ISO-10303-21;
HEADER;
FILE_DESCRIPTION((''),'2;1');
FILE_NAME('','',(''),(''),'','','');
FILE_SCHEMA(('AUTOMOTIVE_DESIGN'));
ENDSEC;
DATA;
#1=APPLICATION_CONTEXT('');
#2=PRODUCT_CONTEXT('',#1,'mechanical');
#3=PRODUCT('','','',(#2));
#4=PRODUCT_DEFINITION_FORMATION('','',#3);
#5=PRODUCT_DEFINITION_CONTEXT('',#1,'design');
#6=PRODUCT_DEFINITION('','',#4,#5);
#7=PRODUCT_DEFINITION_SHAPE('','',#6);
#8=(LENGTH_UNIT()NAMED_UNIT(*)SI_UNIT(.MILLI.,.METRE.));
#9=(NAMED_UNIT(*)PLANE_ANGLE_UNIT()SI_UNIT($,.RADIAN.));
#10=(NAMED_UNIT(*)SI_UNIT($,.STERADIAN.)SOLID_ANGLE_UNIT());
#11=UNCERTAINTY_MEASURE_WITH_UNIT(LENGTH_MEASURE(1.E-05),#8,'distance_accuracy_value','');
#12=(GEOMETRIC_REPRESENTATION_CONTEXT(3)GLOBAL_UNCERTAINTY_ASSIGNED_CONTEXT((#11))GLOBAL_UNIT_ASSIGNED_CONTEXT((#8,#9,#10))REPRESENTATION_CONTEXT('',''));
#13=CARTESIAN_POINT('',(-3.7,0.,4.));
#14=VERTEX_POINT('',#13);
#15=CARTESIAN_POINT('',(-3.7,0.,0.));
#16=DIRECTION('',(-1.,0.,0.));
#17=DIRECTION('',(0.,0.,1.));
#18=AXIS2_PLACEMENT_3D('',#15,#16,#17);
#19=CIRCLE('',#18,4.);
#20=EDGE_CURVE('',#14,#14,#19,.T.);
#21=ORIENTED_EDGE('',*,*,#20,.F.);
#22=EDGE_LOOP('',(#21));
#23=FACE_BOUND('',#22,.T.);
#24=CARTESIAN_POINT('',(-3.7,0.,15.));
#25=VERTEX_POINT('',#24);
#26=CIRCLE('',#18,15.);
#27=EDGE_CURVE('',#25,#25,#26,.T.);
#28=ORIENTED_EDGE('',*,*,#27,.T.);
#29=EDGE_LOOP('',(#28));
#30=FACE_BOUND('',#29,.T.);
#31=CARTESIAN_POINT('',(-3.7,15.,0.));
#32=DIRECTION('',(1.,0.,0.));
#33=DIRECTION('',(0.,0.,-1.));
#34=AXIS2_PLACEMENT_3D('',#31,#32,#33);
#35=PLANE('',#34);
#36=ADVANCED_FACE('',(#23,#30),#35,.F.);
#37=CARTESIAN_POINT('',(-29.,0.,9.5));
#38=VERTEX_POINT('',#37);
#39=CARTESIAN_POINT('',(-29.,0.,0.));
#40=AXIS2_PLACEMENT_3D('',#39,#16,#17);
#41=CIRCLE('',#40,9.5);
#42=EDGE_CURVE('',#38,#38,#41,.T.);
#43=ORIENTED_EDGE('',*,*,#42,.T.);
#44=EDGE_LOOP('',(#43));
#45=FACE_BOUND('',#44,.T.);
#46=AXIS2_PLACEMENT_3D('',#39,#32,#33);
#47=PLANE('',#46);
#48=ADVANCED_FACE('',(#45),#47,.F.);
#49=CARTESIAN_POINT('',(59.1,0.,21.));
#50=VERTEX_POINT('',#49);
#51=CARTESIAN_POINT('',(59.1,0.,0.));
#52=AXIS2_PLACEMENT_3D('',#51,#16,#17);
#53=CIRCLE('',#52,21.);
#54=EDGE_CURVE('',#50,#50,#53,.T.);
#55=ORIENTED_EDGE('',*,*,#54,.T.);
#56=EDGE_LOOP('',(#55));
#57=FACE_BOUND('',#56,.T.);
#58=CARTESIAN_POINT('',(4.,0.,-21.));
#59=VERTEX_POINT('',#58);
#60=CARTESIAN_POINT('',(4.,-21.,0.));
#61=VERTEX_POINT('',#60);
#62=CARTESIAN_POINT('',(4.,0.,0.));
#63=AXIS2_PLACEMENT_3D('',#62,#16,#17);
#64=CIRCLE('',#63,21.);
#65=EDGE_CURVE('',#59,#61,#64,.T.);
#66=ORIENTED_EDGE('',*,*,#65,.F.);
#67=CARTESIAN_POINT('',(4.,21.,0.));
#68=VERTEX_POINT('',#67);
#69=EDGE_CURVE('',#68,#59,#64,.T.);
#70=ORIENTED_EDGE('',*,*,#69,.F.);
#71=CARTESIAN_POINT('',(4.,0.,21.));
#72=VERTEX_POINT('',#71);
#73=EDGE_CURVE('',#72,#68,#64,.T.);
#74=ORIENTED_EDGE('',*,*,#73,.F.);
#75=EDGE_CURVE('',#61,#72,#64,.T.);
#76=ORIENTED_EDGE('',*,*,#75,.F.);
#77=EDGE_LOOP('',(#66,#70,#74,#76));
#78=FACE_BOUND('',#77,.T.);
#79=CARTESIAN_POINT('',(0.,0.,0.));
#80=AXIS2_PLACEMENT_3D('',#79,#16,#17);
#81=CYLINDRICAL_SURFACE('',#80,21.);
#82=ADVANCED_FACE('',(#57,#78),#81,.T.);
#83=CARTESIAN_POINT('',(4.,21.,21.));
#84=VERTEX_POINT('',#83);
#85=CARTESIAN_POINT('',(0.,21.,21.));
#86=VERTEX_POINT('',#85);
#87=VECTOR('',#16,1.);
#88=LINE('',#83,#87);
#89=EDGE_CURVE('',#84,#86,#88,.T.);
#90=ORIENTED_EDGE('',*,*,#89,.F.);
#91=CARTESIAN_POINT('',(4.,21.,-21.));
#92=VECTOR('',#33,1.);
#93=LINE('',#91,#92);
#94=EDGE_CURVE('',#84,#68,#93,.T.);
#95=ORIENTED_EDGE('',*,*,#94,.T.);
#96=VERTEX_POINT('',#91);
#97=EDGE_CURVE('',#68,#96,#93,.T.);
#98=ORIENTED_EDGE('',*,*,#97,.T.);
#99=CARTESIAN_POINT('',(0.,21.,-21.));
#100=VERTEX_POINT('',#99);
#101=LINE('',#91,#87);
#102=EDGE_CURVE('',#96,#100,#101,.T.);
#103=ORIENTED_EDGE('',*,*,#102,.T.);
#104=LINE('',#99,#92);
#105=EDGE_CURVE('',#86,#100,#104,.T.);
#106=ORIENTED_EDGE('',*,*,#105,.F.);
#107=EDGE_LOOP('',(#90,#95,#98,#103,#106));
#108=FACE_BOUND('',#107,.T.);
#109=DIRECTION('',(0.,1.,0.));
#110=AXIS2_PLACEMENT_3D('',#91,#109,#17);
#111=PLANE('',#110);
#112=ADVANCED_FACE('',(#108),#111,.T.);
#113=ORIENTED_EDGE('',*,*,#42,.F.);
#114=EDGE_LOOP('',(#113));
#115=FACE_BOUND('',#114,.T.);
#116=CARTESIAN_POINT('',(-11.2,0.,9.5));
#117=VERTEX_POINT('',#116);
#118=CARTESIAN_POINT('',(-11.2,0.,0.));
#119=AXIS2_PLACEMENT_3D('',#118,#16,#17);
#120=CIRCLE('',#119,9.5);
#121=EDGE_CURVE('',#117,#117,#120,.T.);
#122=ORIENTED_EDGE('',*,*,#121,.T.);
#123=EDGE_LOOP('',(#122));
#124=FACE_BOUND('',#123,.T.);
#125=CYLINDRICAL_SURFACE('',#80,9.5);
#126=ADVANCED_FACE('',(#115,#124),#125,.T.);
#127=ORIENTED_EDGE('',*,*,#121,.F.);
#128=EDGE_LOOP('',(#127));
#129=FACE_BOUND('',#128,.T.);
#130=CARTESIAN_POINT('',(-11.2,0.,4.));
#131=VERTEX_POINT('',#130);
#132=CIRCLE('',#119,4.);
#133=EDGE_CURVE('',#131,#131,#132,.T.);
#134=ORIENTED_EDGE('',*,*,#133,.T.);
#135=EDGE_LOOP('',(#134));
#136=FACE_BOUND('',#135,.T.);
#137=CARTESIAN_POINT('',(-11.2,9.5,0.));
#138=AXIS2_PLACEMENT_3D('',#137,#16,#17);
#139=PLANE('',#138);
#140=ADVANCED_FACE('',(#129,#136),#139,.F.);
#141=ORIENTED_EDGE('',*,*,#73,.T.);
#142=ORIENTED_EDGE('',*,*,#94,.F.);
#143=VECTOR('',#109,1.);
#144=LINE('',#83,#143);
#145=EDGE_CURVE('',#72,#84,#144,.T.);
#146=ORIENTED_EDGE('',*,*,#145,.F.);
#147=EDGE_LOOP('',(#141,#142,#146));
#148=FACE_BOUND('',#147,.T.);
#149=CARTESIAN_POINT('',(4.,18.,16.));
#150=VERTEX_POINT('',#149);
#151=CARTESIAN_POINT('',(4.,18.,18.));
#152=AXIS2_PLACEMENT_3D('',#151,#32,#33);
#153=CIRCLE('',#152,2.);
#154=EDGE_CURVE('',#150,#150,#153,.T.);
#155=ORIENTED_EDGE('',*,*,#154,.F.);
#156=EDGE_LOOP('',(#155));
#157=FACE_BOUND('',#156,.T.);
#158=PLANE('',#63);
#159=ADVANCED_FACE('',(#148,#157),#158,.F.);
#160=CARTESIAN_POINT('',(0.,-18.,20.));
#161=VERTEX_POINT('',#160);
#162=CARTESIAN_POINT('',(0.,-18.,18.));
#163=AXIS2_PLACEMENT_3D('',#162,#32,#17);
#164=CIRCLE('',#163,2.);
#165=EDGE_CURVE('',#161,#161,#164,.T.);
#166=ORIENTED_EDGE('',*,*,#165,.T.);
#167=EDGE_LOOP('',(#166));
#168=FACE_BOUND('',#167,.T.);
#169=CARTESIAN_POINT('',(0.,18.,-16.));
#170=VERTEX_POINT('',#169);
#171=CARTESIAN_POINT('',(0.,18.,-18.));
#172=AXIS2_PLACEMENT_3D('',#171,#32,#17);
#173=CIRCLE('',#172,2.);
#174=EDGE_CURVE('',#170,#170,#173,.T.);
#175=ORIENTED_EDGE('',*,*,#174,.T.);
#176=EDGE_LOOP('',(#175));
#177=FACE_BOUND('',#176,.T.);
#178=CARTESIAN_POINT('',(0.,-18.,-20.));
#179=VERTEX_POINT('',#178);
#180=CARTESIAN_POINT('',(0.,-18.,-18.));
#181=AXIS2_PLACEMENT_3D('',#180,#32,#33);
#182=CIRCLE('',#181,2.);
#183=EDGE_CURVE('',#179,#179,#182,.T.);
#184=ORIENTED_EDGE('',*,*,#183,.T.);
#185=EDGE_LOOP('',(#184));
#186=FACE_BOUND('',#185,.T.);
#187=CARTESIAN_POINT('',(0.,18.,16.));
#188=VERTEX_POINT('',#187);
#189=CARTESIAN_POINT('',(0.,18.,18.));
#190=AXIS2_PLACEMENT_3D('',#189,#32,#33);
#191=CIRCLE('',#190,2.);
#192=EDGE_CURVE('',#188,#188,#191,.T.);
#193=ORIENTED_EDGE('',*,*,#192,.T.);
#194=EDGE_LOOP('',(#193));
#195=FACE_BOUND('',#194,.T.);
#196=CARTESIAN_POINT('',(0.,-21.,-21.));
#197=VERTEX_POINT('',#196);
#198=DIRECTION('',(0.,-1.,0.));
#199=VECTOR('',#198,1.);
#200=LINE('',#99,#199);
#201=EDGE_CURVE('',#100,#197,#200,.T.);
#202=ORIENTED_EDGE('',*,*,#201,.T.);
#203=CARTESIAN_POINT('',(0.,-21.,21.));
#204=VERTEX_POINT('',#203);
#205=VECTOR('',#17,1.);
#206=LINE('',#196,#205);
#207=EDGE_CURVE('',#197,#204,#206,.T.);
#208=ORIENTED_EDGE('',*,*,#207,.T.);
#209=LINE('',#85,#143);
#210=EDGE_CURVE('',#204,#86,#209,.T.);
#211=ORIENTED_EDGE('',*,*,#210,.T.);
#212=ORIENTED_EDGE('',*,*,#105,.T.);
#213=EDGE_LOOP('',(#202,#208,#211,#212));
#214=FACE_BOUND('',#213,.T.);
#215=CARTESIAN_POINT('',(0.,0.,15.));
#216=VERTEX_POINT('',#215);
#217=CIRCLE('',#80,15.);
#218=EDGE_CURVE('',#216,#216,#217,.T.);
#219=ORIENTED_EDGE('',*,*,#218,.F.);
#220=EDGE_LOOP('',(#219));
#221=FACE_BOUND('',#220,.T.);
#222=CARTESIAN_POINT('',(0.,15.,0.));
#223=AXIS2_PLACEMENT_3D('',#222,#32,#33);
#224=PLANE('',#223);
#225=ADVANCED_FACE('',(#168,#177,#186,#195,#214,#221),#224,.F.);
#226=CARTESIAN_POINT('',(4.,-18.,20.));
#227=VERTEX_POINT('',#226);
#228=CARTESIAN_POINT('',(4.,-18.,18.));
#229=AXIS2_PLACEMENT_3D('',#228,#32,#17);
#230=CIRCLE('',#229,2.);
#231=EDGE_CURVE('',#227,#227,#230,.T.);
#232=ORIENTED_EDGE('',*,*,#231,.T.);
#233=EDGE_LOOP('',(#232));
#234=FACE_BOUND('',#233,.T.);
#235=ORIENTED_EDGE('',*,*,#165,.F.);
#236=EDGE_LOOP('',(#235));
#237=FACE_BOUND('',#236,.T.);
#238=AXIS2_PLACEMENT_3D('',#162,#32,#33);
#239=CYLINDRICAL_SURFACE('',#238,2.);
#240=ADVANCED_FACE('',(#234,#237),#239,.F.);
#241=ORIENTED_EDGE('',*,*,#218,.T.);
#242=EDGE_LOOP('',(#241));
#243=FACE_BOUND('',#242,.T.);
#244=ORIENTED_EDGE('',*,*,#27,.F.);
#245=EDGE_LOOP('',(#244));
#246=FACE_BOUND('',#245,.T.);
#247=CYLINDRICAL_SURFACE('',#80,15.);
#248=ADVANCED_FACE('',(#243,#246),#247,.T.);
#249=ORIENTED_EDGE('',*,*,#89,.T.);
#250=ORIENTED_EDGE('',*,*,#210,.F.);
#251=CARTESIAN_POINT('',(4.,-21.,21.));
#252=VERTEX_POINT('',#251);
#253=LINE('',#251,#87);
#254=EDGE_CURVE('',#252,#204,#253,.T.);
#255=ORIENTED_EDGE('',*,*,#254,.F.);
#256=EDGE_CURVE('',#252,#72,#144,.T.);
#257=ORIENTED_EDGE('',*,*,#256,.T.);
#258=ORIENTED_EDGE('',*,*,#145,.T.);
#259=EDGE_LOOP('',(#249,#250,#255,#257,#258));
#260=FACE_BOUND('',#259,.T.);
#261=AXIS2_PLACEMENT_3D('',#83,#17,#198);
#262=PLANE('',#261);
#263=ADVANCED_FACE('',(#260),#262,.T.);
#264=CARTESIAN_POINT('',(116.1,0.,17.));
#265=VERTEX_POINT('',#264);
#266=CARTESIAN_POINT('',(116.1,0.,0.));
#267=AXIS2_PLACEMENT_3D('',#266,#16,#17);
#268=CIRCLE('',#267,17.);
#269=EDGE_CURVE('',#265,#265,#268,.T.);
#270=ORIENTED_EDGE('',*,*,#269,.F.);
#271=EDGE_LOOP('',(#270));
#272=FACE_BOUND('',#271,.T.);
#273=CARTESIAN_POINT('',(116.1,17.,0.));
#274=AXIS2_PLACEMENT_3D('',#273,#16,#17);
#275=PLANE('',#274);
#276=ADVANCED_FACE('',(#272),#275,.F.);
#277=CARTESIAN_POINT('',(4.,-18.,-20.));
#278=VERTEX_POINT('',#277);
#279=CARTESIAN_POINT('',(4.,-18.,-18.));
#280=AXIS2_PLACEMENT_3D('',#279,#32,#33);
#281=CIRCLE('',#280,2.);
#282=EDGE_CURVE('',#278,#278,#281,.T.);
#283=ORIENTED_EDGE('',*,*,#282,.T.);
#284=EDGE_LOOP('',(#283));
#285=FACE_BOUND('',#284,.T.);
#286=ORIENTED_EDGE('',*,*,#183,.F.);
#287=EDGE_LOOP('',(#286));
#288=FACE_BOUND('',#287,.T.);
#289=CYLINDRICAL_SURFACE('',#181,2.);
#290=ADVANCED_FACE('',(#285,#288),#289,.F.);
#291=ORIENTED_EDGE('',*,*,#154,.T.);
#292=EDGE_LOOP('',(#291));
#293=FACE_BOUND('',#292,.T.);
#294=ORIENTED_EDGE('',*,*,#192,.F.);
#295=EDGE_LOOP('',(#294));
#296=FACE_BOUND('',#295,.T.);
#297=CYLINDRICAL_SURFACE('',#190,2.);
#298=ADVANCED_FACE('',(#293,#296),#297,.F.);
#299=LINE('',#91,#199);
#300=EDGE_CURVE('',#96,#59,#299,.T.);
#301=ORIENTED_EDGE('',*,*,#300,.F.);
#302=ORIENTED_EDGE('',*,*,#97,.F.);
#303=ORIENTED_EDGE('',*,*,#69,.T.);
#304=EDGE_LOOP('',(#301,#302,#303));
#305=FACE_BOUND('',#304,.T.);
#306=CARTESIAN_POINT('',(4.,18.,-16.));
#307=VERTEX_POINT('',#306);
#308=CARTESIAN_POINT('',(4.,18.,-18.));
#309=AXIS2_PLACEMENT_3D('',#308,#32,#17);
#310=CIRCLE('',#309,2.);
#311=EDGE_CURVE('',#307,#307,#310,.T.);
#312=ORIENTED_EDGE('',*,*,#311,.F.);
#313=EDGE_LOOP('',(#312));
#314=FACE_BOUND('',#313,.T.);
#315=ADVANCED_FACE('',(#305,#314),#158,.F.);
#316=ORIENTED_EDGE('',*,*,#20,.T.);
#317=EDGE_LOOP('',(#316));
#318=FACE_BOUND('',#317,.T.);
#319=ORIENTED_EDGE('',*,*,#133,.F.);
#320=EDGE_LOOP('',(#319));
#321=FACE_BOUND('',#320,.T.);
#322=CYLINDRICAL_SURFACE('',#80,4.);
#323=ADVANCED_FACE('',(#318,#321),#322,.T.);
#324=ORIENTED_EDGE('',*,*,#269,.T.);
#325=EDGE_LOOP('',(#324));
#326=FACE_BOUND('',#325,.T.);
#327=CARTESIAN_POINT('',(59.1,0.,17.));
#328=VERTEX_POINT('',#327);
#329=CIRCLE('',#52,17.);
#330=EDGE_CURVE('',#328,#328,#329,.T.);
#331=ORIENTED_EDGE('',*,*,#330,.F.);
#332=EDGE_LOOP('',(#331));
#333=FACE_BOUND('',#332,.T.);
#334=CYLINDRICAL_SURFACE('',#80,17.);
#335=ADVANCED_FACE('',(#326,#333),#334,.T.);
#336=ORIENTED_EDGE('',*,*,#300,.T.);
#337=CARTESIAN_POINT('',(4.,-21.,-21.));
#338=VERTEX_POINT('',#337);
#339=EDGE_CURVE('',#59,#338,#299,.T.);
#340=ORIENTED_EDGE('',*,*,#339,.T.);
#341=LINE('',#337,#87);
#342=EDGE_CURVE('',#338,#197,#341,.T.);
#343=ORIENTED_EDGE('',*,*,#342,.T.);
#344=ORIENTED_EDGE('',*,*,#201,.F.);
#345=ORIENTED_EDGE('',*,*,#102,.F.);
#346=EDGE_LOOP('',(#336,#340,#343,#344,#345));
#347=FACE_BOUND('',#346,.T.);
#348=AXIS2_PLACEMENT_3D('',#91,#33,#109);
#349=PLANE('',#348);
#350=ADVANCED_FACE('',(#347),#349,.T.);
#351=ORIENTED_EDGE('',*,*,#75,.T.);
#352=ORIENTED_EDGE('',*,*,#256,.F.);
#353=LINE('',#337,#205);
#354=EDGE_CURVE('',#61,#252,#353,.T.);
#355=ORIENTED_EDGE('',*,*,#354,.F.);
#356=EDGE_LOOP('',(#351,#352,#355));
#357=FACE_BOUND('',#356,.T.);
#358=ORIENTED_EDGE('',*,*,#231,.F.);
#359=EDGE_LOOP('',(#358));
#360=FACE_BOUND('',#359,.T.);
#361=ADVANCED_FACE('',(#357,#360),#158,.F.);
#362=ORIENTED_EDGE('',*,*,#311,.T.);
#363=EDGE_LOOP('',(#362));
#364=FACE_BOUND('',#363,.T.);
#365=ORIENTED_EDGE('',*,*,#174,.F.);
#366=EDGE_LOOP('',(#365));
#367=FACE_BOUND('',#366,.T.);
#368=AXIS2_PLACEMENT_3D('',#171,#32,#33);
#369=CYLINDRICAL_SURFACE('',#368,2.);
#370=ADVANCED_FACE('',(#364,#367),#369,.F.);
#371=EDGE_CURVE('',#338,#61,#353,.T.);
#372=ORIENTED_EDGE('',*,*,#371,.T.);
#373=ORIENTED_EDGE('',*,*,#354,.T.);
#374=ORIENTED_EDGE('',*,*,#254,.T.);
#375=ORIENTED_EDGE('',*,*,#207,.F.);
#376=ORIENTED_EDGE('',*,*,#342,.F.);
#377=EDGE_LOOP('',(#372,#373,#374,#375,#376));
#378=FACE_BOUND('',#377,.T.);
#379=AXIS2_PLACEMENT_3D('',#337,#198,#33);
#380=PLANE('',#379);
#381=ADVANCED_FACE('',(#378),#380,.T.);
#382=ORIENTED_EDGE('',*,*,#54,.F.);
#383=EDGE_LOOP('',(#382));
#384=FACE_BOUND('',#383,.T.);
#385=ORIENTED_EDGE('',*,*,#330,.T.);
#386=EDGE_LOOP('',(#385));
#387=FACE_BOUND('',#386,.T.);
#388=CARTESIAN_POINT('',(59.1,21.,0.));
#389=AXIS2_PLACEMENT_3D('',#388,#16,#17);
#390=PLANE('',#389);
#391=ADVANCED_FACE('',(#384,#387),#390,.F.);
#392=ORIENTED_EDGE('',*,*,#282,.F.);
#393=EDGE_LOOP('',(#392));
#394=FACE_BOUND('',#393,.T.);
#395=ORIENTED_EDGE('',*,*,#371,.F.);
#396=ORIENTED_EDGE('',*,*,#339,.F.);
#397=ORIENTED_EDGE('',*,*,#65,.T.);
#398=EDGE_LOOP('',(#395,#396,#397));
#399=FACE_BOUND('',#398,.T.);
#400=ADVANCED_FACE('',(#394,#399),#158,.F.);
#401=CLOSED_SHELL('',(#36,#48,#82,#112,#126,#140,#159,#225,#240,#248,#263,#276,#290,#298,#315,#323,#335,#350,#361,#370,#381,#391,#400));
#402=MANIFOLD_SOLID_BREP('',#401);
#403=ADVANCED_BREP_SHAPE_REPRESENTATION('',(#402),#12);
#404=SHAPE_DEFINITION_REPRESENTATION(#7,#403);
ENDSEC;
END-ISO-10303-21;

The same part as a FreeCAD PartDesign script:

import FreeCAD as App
import Part
import Sketcher

V = App.Vector


def add_polygon(sketch, points):
    """Adds a closed chain of lines whose ends are joined by coincident constraints."""
    first, n = sketch.GeometryCount, len(points)
    for a, b in zip(points, points[1:] + points[:1]):
        sketch.addGeometry(Part.LineSegment(App.Vector(*a, 0), App.Vector(*b, 0)), False)
    for i in range(n):
        sketch.addConstraint(Sketcher.Constraint("Coincident", first + i, 2, first + (i + 1) % n, 1))

doc = App.newDocument("Part")
body = doc.addObject("PartDesign::Body", "Body")

# Sketch on XY plane
sketch1 = body.newObject("Sketcher::SketchObject", "Sketch")
sketch1.AttachmentSupport = (doc.getObject("XY_Plane"), [""])
sketch1.MapMode = "FlatFace"
add_polygon(sketch1, [(-29, 9.5), (-29, 0), (116.1, 0), (116.1, 17), (59.1, 17), (59.1, 21), (0, 21), (0, 15), (-3.7, 15), (-3.7, 4), (-11.2, 4), (-11.2, 9.5)])  # lines 0-11
sketch1.addConstraint([
    Sketcher.Constraint("Vertical", 0),
    Sketcher.Constraint("Horizontal", 1),
    Sketcher.Constraint("Vertical", 2),
    Sketcher.Constraint("Horizontal", 3),
    Sketcher.Constraint("Vertical", 4),
    Sketcher.Constraint("Horizontal", 5),
    Sketcher.Constraint("Vertical", 6),
    Sketcher.Constraint("Horizontal", 7),
    Sketcher.Constraint("Vertical", 8),
    Sketcher.Constraint("Horizontal", 9),
    Sketcher.Constraint("Vertical", 10),
    Sketcher.Constraint("Horizontal", 11),
    Sketcher.Constraint("PointOnObject", 0, 2, -1),
    Sketcher.Constraint("PointOnObject", 5, 2, -2),
    Sketcher.Constraint("DistanceX", 3, 2, 3, 1, 57.0),
    Sketcher.Constraint("DistanceY", 2, 1, 2, 2, 17.0),
    Sketcher.Constraint("DistanceY", 4, 1, 4, 2, 4.0),
    Sketcher.Constraint("DistanceY", 6, 2, 6, 1, 6.0),
    Sketcher.Constraint("DistanceY", 8, 2, 8, 1, 11.0),
    Sketcher.Constraint("DistanceX", 1, 1, 1, 2, 145.1),
    Sketcher.Constraint("DistanceX", 5, 2, 5, 1, 59.1),
    Sketcher.Constraint("DistanceX", 7, 2, 7, 1, 3.7),
    Sketcher.Constraint("DistanceX", 9, 2, 9, 1, 7.5),
    Sketcher.Constraint("DistanceY", 0, 2, 0, 1, 9.5),
])
revolution = body.newObject("PartDesign::Revolution", "Revolution")
revolution.Profile = sketch1
revolution.ReferenceAxis = (sketch1, ["H_Axis"])
revolution.Angle = 360

# Sketch on YZ plane
sketch2 = body.newObject("Sketcher::SketchObject", "Sketch001")
sketch2.AttachmentSupport = (doc.getObject("YZ_Plane"), [""])
sketch2.MapMode = "FlatFace"
add_polygon(sketch2, [(21, -21), (-21, -21), (-21, 21), (21, 21)])  # lines 0-3
sketch2.addConstraint([
    Sketcher.Constraint("Horizontal", 0),
    Sketcher.Constraint("Vertical", 1),
    Sketcher.Constraint("Horizontal", 2),
    Sketcher.Constraint("Vertical", 3),
    Sketcher.Constraint("Symmetric", 0, 2, 2, 2, -1, 1),
    Sketcher.Constraint("Equal", 2, 1),
    Sketcher.Constraint("DistanceX", 0, 2, 0, 1, 42.0),
])
pad1 = body.newObject("PartDesign::Pad", "Pad")
pad1.Profile = sketch2
pad1.Length = 4

# Sketch on YZ plane
sketch3 = body.newObject("Sketcher::SketchObject", "Sketch002")
sketch3.AttachmentSupport = (doc.getObject("YZ_Plane"), [""])
sketch3.MapMode = "FlatFace"
sketch3.AttachmentOffset = App.Placement(V(0, 0, 4), App.Rotation())
sketch3.addGeometry([
    Part.Circle(V(18, 18, 0), V(0, 0, 1), 2),
    Part.Circle(V(-18, 18, 0), V(0, 0, 1), 2),
    Part.Circle(V(-18, -18, 0), V(0, 0, 1), 2),
    Part.Circle(V(18, -18, 0), V(0, 0, 1), 2),
], False)
sketch3.addConstraint([
    Sketcher.Constraint("Equal", 0, 1),
    Sketcher.Constraint("Equal", 1, 2),
    Sketcher.Constraint("Equal", 2, 3),
    Sketcher.Constraint("Symmetric", 0, 3, 2, 3, -1, 1),
    Sketcher.Constraint("Symmetric", 1, 3, 3, 3, -1, 1),
    Sketcher.Constraint("Symmetric", 0, 3, 1, 3, -2),
    Sketcher.Constraint("Diameter", 0, 4.0),
    Sketcher.Constraint("DistanceX", -1, 1, 0, 3, 18.0),
    Sketcher.Constraint("DistanceY", -1, 1, 0, 3, 18.0),
])
pocket1 = body.newObject("PartDesign::Pocket", "Pocket")
pocket1.Profile = sketch3
pocket1.Length = 4

doc.recompute()
